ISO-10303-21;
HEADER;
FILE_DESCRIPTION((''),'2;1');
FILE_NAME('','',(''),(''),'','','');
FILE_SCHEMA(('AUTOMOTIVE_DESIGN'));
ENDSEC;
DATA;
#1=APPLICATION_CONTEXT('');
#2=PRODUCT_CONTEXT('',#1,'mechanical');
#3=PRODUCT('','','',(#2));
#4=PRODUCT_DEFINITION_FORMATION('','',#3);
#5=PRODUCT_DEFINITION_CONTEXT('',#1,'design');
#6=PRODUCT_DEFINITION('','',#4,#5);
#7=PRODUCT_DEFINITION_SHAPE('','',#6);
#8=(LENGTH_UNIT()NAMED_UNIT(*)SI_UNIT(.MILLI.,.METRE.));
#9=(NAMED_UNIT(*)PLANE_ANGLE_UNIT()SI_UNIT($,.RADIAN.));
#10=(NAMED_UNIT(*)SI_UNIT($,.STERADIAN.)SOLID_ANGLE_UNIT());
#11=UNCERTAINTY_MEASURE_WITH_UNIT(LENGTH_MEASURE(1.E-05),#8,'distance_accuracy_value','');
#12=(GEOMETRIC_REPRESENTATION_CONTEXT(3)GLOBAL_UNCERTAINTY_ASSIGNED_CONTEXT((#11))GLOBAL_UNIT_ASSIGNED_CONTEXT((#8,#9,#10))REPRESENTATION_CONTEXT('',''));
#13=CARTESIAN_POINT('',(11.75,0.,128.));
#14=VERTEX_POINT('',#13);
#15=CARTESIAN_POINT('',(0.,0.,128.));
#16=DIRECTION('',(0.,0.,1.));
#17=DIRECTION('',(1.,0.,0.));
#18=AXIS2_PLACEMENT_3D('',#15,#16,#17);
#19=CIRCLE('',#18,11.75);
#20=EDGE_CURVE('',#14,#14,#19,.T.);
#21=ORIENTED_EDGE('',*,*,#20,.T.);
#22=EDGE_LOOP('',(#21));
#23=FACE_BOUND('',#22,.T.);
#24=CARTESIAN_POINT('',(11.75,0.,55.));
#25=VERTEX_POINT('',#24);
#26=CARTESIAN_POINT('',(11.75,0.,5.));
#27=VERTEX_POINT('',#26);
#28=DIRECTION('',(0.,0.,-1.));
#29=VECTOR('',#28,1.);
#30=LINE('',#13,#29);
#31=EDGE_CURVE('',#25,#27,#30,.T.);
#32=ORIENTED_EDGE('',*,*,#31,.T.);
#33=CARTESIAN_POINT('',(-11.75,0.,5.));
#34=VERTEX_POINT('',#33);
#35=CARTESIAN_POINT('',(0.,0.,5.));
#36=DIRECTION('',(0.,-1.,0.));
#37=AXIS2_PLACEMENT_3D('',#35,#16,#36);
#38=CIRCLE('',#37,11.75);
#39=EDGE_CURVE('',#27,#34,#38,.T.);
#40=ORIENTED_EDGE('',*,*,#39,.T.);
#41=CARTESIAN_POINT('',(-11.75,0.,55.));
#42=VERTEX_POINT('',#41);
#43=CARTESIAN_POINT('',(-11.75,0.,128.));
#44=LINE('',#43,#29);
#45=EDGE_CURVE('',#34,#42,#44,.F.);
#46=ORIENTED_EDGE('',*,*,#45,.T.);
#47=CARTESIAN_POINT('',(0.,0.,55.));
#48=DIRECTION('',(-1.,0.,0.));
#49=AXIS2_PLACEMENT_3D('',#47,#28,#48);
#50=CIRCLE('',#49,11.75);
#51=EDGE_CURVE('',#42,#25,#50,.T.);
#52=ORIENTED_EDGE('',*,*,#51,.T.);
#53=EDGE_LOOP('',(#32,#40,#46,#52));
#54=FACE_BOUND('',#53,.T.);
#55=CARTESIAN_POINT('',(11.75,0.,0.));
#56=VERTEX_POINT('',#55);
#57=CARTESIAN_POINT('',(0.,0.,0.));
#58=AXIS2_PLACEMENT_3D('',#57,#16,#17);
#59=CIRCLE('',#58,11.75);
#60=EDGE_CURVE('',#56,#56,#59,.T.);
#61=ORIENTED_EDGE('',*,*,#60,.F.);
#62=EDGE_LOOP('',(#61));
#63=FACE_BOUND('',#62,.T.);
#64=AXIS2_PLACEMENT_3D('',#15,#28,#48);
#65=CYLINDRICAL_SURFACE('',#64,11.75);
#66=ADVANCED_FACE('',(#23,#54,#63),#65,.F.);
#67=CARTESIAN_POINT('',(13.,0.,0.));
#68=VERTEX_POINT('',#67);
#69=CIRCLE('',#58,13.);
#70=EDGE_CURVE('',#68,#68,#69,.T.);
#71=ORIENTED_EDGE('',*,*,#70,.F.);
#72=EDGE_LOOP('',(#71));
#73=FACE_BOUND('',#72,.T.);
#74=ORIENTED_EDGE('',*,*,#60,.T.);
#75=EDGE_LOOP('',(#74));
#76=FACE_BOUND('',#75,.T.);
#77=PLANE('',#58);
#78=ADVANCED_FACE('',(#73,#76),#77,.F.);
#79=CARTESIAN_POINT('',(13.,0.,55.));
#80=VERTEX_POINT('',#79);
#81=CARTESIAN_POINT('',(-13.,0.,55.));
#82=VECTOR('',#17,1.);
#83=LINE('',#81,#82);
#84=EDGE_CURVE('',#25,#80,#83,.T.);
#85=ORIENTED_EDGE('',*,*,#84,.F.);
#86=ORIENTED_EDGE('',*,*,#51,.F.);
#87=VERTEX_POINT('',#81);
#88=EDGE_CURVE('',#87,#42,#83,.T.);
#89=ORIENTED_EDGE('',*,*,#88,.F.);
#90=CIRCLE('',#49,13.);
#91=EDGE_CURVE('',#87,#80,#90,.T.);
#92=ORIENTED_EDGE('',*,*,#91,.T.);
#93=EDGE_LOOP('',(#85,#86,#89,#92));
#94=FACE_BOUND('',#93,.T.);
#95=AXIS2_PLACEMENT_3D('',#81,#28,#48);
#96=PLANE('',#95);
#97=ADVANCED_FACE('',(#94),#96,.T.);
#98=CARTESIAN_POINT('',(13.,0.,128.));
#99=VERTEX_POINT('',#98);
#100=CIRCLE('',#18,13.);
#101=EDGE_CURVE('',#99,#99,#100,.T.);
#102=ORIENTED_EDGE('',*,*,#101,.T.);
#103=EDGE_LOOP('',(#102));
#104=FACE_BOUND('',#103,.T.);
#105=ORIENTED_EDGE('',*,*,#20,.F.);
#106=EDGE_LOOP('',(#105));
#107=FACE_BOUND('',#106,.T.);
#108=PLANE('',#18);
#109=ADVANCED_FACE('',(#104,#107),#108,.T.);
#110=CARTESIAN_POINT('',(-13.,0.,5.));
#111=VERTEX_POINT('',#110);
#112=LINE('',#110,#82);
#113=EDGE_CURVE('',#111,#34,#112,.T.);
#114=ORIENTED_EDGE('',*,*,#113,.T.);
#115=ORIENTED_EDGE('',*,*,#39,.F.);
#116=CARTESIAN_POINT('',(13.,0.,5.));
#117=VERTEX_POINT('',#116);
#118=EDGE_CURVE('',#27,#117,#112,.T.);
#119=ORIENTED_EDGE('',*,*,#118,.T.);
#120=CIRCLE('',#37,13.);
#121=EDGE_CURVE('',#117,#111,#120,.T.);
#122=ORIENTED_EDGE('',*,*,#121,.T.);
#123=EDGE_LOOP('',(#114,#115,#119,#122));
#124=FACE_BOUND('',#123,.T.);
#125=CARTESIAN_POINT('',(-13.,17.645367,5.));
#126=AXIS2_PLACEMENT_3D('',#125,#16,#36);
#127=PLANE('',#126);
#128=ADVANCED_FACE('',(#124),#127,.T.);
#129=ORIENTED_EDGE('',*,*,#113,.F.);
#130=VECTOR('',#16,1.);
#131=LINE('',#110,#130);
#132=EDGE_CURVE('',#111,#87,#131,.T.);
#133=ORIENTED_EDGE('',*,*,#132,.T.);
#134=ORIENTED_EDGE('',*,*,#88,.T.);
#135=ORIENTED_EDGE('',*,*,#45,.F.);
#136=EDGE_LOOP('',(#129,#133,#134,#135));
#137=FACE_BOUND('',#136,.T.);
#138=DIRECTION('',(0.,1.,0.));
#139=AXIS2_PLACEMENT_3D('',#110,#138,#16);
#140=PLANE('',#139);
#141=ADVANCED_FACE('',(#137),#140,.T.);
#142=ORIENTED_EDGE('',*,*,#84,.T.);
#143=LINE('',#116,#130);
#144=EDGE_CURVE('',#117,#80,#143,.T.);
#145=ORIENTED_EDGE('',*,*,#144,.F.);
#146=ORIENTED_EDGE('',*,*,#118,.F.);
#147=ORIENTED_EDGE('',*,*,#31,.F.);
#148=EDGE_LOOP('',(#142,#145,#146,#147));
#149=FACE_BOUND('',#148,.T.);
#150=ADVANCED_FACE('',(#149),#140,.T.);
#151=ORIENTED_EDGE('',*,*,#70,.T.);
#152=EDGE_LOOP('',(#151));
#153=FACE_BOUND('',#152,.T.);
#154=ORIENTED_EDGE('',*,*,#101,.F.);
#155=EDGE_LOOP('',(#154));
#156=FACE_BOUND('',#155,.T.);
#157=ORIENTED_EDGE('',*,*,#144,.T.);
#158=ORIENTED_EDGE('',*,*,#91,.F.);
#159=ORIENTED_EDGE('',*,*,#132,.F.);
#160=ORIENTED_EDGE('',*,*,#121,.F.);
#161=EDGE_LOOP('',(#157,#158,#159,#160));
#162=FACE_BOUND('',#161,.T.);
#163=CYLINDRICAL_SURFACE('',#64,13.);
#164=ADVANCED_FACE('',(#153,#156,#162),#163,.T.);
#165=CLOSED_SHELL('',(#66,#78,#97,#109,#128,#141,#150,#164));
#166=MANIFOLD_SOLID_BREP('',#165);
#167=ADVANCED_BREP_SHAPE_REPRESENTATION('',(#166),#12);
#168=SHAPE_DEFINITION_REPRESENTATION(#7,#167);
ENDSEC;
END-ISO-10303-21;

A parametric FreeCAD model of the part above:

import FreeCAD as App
import Part
import Sketcher
from FreeCAD import Vector

doc = App.newDocument("Part")
params = doc.addObject("Spreadsheet::Sheet", "Params")
for row, (alias, value) in enumerate([
    ("sketch1_diameter", "26 mm"),
    ("sketch1_diameter2", "23.5 mm"),
    ("pad1_length", "128 mm"),
    ("sketch2_height", "50 mm"),
], start=1):
    params.set(f"A{row}", alias)
    params.set(f"B{row}", "=" + value)
    params.setAlias(f"B{row}", alias)

body = doc.addObject("PartDesign::Body", "Body")

# Sketch on XY plane
sketch1 = doc.addObject("Sketcher::SketchObject", "Sketch")
body.addObject(sketch1)
sketch1.AttachmentSupport = (doc.XY_Plane, [""])
sketch1.MapMode = "FlatFace"
sketch1.addGeometry([
    Part.Circle(Vector(0, 0, 0), Vector(0, 0, 1), 13),
    Part.Circle(Vector(0, 0, 0), Vector(0, 0, 1), 12),
], False)
sketch1.addConstraint([
    Sketcher.Constraint("Coincident", 0, 3, -1, 1),
    Sketcher.Constraint("Coincident", 1, 3, -1, 1),
    Sketcher.Constraint("Diameter", 0, 26.0),
    Sketcher.Constraint("Diameter", 1, 23.5),
])
sketch1.setExpression("Constraints[2]", "Params.sketch1_diameter")
sketch1.setExpression("Constraints[3]", "Params.sketch1_diameter2")
pad1 = doc.addObject("PartDesign::Pad", "Pad")
body.addObject(pad1)
pad1.Profile = sketch1
pad1.setExpression("Length", "Params.pad1_length")

# Sketch on YZ plane
sketch2 = doc.addObject("Sketcher::SketchObject", "Sketch001")
body.addObject(sketch2)
sketch2.AttachmentSupport = (doc.YZ_Plane, [""])
sketch2.MapMode = "FlatFace"
sketch2.addGeometry([
    Part.LineSegment(Vector(18, 55, 0), Vector(0, 55, 0)),
    Part.LineSegment(Vector(0, 55, 0), Vector(0, 5, 0)),
    Part.LineSegment(Vector(0, 5, 0), Vector(18, 5, 0)),
    Part.LineSegment(Vector(18, 5, 0), Vector(18, 55, 0)),
], False)
sketch2.addConstraint([
    Sketcher.Constraint("Coincident", 0, 2, 1, 1),
    Sketcher.Constraint("Coincident", 1, 2, 2, 1),
    Sketcher.Constraint("Coincident", 2, 2, 3, 1),
    Sketcher.Constraint("Coincident", 3, 2, 0, 1),
    Sketcher.Constraint("Horizontal", 0),
    Sketcher.Constraint("Vertical", 1),
    Sketcher.Constraint("Horizontal", 2),
    Sketcher.Constraint("Vertical", 3),
    Sketcher.Constraint("PointOnObject", 0, 2, -2),
    Sketcher.Constraint("DistanceY", 1, 2, 1, 1, 50.0),
    Sketcher.Constraint("DistanceY", -1, 1, 0, 2, 55.0),
    Sketcher.Constraint("DistanceX", 0, 2, 0, 1, 17.645367),
])
sketch2.setExpression("Constraints[9]", "Params.sketch2_height")
pocket1 = doc.addObject("PartDesign::Pocket", "Pocket")
body.addObject(pocket1)
pocket1.Profile = sketch2
pocket1.Type = "ThroughAll"
pocket1.Midplane = True

doc.recompute()
